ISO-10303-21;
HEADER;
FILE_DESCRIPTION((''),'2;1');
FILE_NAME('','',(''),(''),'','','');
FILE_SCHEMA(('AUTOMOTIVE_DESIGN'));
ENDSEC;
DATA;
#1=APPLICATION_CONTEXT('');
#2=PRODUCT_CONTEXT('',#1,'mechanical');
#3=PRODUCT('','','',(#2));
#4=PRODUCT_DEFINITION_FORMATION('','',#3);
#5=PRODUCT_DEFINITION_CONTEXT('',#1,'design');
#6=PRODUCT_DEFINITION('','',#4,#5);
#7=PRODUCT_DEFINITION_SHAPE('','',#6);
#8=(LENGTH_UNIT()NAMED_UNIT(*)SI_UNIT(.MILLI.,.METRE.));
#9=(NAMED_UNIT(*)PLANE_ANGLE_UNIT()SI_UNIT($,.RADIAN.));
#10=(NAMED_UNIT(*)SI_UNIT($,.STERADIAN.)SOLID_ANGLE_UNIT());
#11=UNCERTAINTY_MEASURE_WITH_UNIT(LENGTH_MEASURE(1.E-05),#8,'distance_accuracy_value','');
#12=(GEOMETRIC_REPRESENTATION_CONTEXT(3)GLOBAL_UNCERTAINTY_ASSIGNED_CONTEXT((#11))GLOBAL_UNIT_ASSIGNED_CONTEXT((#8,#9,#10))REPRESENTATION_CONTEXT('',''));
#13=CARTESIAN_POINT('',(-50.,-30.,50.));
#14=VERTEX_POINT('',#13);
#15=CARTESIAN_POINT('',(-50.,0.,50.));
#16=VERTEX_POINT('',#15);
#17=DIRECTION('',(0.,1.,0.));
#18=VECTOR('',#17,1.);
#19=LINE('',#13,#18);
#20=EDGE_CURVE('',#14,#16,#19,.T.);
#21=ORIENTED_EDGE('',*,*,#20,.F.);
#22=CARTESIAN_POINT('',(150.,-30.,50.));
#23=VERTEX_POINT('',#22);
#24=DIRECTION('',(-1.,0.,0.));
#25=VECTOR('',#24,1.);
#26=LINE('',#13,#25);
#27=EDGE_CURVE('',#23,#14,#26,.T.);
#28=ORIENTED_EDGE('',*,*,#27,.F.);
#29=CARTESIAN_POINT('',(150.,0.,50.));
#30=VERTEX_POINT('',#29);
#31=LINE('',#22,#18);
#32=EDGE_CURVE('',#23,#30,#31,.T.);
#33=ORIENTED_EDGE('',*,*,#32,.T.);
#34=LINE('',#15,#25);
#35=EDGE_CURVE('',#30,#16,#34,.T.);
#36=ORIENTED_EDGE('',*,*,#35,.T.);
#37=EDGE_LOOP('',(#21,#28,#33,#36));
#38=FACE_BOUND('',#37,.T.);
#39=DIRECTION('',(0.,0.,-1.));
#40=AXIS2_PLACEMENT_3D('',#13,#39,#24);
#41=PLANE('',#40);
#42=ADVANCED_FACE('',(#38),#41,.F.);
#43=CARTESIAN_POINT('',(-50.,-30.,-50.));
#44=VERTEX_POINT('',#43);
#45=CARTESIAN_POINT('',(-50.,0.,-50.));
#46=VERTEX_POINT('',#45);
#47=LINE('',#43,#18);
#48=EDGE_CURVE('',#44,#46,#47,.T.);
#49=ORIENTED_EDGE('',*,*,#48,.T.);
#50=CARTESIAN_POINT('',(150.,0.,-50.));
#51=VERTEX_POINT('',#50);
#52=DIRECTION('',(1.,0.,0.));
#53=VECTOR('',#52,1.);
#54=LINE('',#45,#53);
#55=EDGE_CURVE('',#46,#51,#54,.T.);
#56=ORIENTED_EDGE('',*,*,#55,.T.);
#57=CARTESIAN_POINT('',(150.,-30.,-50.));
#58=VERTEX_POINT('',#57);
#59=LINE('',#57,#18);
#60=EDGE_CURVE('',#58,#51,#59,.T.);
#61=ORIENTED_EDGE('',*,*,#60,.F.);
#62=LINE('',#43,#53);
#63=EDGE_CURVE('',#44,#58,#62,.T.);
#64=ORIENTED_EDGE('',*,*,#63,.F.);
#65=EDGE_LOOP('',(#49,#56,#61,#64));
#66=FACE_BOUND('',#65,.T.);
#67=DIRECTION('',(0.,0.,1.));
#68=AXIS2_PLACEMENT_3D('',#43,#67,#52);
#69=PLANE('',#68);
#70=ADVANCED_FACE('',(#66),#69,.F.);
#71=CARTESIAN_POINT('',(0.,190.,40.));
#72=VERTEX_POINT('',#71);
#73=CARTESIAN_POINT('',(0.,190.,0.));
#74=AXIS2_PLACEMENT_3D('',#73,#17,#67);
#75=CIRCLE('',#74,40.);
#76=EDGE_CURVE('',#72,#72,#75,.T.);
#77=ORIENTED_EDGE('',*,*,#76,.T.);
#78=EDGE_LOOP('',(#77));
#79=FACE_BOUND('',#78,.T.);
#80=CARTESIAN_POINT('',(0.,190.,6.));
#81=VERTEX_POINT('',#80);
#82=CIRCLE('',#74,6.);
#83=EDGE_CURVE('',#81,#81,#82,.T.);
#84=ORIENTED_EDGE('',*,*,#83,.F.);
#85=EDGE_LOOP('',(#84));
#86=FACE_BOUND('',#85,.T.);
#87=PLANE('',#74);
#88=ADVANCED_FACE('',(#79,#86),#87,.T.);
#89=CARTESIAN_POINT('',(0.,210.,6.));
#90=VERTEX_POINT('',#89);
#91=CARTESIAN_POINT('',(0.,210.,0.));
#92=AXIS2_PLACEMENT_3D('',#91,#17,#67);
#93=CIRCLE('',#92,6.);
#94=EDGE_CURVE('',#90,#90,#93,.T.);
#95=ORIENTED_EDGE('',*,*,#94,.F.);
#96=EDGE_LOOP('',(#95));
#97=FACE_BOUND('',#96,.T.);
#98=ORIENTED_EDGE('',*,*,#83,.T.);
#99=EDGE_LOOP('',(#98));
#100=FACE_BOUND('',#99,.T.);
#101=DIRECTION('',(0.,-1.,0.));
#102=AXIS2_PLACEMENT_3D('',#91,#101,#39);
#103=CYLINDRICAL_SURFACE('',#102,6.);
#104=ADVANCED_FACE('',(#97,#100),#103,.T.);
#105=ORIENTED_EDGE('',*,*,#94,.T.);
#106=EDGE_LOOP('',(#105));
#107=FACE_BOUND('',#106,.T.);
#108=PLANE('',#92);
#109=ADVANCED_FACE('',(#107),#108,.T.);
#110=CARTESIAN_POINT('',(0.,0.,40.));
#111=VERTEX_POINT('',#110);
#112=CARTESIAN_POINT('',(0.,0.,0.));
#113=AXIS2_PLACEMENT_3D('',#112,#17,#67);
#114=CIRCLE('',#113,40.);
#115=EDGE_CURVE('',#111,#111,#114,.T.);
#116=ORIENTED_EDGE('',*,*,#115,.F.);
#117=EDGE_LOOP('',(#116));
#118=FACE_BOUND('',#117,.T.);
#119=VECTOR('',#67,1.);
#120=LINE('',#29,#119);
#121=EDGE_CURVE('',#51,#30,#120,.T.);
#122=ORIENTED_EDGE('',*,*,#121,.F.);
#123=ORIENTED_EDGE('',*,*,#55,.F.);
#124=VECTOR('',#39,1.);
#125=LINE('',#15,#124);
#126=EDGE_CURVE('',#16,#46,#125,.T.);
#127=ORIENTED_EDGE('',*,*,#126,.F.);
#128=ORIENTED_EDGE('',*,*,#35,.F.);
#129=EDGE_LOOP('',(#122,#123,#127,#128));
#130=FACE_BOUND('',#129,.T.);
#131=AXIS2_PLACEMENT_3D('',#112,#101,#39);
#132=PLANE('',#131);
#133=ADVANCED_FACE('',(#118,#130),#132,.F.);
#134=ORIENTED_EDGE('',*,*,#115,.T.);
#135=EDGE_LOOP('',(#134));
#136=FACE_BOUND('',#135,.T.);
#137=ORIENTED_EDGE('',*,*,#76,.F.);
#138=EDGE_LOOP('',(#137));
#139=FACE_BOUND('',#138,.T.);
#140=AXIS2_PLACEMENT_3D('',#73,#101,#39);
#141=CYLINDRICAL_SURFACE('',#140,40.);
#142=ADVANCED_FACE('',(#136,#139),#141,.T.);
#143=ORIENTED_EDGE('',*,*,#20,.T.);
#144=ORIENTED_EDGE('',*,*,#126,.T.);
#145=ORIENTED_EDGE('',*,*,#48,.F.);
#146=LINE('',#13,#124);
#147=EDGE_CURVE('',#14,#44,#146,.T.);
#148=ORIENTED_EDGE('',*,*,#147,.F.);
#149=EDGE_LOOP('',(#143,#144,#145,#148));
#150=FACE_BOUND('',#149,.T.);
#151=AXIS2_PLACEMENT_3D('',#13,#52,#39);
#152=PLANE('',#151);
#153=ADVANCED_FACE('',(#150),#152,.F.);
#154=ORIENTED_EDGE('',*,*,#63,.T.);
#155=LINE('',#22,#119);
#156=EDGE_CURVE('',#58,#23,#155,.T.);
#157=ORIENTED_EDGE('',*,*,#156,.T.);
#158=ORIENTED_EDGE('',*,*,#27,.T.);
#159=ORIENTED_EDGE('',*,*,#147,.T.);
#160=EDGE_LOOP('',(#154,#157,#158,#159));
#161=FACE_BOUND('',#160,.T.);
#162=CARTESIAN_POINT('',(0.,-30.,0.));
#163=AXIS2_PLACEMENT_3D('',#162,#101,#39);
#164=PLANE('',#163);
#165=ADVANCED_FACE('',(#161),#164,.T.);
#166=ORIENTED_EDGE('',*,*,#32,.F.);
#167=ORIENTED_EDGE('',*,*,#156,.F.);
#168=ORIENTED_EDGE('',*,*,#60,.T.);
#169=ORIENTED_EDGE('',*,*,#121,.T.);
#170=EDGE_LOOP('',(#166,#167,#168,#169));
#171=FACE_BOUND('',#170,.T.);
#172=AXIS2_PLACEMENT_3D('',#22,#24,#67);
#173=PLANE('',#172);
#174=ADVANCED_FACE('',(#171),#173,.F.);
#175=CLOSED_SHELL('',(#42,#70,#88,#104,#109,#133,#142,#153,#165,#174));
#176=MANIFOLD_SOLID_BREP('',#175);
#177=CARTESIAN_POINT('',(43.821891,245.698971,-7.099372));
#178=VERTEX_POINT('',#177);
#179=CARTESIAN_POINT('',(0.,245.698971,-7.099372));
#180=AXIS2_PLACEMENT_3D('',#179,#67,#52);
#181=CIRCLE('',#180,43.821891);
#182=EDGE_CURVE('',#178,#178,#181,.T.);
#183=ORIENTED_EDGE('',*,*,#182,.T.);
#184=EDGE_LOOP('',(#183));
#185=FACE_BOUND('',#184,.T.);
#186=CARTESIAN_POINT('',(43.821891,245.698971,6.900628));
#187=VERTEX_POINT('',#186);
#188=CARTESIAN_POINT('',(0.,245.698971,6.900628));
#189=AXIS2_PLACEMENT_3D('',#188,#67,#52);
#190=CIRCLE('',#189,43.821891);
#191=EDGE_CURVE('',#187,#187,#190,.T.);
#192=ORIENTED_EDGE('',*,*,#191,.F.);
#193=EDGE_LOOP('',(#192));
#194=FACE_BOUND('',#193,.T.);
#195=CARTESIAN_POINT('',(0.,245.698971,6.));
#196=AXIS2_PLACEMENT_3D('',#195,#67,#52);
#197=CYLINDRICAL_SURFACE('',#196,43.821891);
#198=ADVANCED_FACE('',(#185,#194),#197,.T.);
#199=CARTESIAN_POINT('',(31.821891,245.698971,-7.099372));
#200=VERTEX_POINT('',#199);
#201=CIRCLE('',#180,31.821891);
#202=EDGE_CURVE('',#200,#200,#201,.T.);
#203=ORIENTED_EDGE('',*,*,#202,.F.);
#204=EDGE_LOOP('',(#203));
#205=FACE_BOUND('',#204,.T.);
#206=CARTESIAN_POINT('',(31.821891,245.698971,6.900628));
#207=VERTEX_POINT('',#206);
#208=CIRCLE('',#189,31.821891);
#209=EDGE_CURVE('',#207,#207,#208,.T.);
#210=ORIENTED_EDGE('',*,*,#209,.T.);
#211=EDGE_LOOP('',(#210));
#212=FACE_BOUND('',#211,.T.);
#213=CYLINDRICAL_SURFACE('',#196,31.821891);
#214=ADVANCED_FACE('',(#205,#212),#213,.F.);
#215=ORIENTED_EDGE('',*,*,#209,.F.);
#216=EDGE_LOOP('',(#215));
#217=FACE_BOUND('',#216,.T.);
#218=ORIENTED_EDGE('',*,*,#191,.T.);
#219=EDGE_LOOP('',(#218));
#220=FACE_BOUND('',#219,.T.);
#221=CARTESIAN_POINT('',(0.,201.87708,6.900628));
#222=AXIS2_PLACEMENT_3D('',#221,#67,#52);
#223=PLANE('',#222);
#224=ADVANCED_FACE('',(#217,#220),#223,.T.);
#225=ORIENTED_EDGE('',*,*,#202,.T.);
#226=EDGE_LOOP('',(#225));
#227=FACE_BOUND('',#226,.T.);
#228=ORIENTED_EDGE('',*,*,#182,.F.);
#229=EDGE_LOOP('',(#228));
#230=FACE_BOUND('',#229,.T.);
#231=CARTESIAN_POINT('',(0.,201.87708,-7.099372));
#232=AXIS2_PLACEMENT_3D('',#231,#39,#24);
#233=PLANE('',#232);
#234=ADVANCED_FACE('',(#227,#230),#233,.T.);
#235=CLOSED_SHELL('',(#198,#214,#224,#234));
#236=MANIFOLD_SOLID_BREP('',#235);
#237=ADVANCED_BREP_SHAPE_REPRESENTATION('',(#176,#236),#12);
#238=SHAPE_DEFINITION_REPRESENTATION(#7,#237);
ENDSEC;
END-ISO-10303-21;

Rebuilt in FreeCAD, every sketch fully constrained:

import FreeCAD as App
import Part
import Sketcher
from FreeCAD import Vector

doc = App.newDocument("Part")
params = doc.addObject("Spreadsheet::Sheet", "Params")
for row, (alias, value) in enumerate([
    ("sketch1_diameter", "80 mm"),
    ("pad1_length", "190 mm"),
    ("sketch2_width", "200 mm"),
    ("sketch2_height", "100 mm"),
    ("pad2_length", "30 mm"),
    ("sketch3_diameter", "12 mm"),
    ("pad3_length", "20 mm"),
    ("sketch4_width", "12 mm"),
    ("sketch4_height", "14 mm"),
    ("revolution_angle", "360 deg"),
], start=1):
    params.set(f"A{row}", alias)
    params.set(f"B{row}", "=" + value)
    params.setAlias(f"B{row}", alias)

body = doc.addObject("PartDesign::Body", "Body")

# Sketch on XZ plane
sketch1 = body.newObject("Sketcher::SketchObject", "Sketch")
sketch1.AttachmentSupport = (doc.getObject("XZ_Plane"), [""])
sketch1.MapMode = "FlatFace"
sketch1.addGeometry(Part.Circle(Vector(0, 0, 0), Vector(0, 0, 1), 40), False)
sketch1.addConstraint([
    Sketcher.Constraint("Coincident", 0, 3, -1, 1),
    Sketcher.Constraint("Diameter", 0, 80.0),
])
sketch1.setExpression("Constraints[1]", "Params.sketch1_diameter")
pad1 = body.newObject("PartDesign::Pad", "Pad")
pad1.Profile = sketch1
pad1.setExpression("Length", "Params.pad1_length")
pad1.Reversed = True

# Sketch on XZ plane
sketch2 = body.newObject("Sketcher::SketchObject", "Sketch001")
sketch2.AttachmentSupport = (doc.getObject("XZ_Plane"), [""])
sketch2.MapMode = "FlatFace"
sketch2.addGeometry([
    Part.LineSegment(Vector(-50, 50, 0), Vector(-50, -50, 0)),
    Part.LineSegment(Vector(-50, -50, 0), Vector(150, -50, 0)),
    Part.LineSegment(Vector(150, -50, 0), Vector(150, 50, 0)),
    Part.LineSegment(Vector(150, 50, 0), Vector(-50, 50, 0)),
], False)
sketch2.addConstraint([
    Sketcher.Constraint("Coincident", 0, 2, 1, 1),
    Sketcher.Constraint("Coincident", 1, 2, 2, 1),
    Sketcher.Constraint("Coincident", 2, 2, 3, 1),
    Sketcher.Constraint("Coincident", 3, 2, 0, 1),
    Sketcher.Constraint("Vertical", 0),
    Sketcher.Constraint("Horizontal", 1),
    Sketcher.Constraint("Vertical", 2),
    Sketcher.Constraint("Horizontal", 3),
    Sketcher.Constraint("DistanceX", 1, 1, 1, 2, 200.0),
    Sketcher.Constraint("DistanceY", 0, 2, 0, 1, 100.0),
    Sketcher.Constraint("DistanceX", 0, 2, -1, 1, 50.0),
    Sketcher.Constraint("DistanceY", 0, 2, -1, 1, 50.0),
])
sketch2.setExpression("Constraints[8]", "Params.sketch2_width")
sketch2.setExpression("Constraints[9]", "Params.sketch2_height")
pad2 = body.newObject("PartDesign::Pad", "Pad001")
pad2.Profile = sketch2
pad2.setExpression("Length", "Params.pad2_length")

# Sketch on XZ plane
sketch3 = body.newObject("Sketcher::SketchObject", "Sketch002")
sketch3.AttachmentSupport = (doc.getObject("XZ_Plane"), [""])
sketch3.MapMode = "FlatFace"
sketch3.AttachmentOffset = App.Placement(Vector(0, 0, -190), App.Rotation())
sketch3.addGeometry(Part.Circle(Vector(0, 0, 0), Vector(0, 0, 1), 6), False)
sketch3.addConstraint([
    Sketcher.Constraint("Coincident", 0, 3, -1, 1),
    Sketcher.Constraint("Diameter", 0, 12.0),
])
sketch3.setExpression("Constraints[1]", "Params.sketch3_diameter")
pad3 = body.newObject("PartDesign::Pad", "Pad002")
pad3.Profile = sketch3
pad3.setExpression("Length", "Params.pad3_length")
pad3.Reversed = True
body2 = doc.addObject("PartDesign::Body", "Body001")

# Sketch on YZ plane
sketch4 = body2.newObject("Sketcher::SketchObject", "Sketch003")
sketch4.AttachmentSupport = (doc.getObject("YZ_Plane001"), [""])
sketch4.MapMode = "FlatFace"
sketch4.addGeometry([
    Part.LineSegment(Vector(213.87708, 6.900628, 0), Vector(201.87708, 6.900628, 0)),
    Part.LineSegment(Vector(201.87708, 6.900628, 0), Vector(201.87708, -7.099372, 0)),
    Part.LineSegment(Vector(201.87708, -7.099372, 0), Vector(213.87708, -7.099372, 0)),
    Part.LineSegment(Vector(213.87708, -7.099372, 0), Vector(213.87708, 6.900628, 0)),
], False)
sketch4.addGeometry(Part.LineSegment(Vector(245.698971, 6.900628, 0), Vector(245.698971, -7.099372, 0)), True)  # axis
sketch4.addConstraint([
    Sketcher.Constraint("Coincident", 0, 2, 1, 1),
    Sketcher.Constraint("Coincident", 1, 2, 2, 1),
    Sketcher.Constraint("Coincident", 2, 2, 3, 1),
    Sketcher.Constraint("Coincident", 3, 2, 0, 1),
    Sketcher.Constraint("Horizontal", 0),
    Sketcher.Constraint("Vertical", 1),
    Sketcher.Constraint("Horizontal", 2),
    Sketcher.Constraint("Vertical", 3),
    Sketcher.Constraint("Vertical", 4),
    Sketcher.Constraint("Horizontal", 3, 2, 4, 1),
    Sketcher.Constraint("Horizontal", 2, 2, 4, 2),
    Sketcher.Constraint("DistanceX", 0, 2, 0, 1, 12.0),
    Sketcher.Constraint("DistanceY", 1, 2, 1, 1, 14.0),
    Sketcher.Constraint("DistanceX", -1, 1, 0, 2, 201.87708),
    Sketcher.Constraint("DistanceY", -1, 1, 0, 2, 6.900628),
    Sketcher.Constraint("DistanceX", -1, 1, 4, 1, 245.698971),
])
sketch4.setExpression("Constraints[11]", "Params.sketch4_width")
sketch4.setExpression("Constraints[12]", "Params.sketch4_height")
revolution = body2.newObject("PartDesign::Revolution", "Revolution")
revolution.Profile = sketch4
revolution.ReferenceAxis = (sketch4, ["Axis0"])
revolution.setExpression("Angle", "Params.revolution_angle")

doc.recompute()
